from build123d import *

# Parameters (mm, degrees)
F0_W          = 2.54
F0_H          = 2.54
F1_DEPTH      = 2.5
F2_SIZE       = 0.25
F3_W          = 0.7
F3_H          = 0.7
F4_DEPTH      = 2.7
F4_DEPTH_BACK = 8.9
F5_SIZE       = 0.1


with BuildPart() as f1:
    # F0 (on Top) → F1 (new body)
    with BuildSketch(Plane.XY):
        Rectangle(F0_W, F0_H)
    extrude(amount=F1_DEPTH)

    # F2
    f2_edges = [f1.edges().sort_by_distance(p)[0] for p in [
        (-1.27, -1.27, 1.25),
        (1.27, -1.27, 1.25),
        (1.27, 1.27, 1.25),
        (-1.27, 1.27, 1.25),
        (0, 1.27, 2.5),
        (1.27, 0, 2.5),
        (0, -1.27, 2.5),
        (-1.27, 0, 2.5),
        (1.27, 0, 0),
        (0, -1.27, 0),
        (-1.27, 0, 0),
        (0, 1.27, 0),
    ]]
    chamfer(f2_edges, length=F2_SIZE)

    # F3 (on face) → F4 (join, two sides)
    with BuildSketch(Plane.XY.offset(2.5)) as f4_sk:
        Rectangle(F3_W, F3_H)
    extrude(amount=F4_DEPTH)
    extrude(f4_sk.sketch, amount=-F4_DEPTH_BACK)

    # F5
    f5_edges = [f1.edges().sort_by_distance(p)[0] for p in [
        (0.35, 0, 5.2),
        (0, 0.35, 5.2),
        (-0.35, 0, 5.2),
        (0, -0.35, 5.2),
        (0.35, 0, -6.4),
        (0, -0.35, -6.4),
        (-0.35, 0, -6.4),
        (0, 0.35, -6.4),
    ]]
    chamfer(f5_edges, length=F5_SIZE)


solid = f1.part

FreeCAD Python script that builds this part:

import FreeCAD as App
import Part
import Sketcher


def edges_at(feature, points):
    """Names of the edges that pass closest to the given points."""
    edges = feature.Shape.Edges
    near = lambda p: min(range(len(edges)), key=lambda i: edges[i].distToShape(Part.Vertex(*p))[0])
    return sorted({f"Edge{near(p) + 1}" for p in points})


def add_polygon(sketch, points):
    """Adds a closed chain of lines whose ends are joined by coincident constraints."""
    first, n = sketch.GeometryCount, len(points)
    for a, b in zip(points, points[1:] + points[:1]):
        sketch.addGeometry(Part.LineSegment(App.Vector(*a, 0), App.Vector(*b, 0)), False)
    for i in range(n):
        sketch.addConstraint(Sketcher.Constraint("Coincident", first + i, 2, first + (i + 1) % n, 1))

doc = App.newDocument("Part")
params = doc.addObject("Spreadsheet::Sheet", "Params")
for row, (alias, value) in enumerate([
    ("sketch1_width", "2.54 mm"),
    ("pad1_length", "2.5 mm"),
    ("chamfer_size", "0.25 mm"),
    ("sketch2_width", "0.7 mm"),
    ("pad2_length", "2.7 mm"),
    ("pad2_length2", "8.9 mm"),
    ("chamfer2_size", "0.1 mm"),
], start=1):
    params.set(f"A{row}", alias)
    params.set(f"B{row}", "=" + value)
    params.setAlias(f"B{row}", alias)

body = doc.addObject("PartDesign::Body", "Body")

sketch1 = body.newObject("Sketcher::SketchObject", "Sketch")
sketch1.AttachmentSupport = (doc.getObject("XY_Plane"), [""])
sketch1.MapMode = "FlatFace"
add_polygon(sketch1, [(-1.3, 1.3), (-1.3, -1.3), (1.3, -1.3), (1.3, 1.3)])
sketch1.addConstraint(Sketcher.Constraint("Vertical", 0))
sketch1.addConstraint(Sketcher.Constraint("Horizontal", 1))
sketch1.addConstraint(Sketcher.Constraint("Vertical", 2))
sketch1.addConstraint(Sketcher.Constraint("Horizontal", 3))
sketch1.addConstraint(Sketcher.Constraint("Symmetric", 0, 2, 2, 2, -1, 1))
sketch1.addConstraint(Sketcher.Constraint("Equal", 3, 0))
sketch1.addConstraint(Sketcher.Constraint("DistanceX", 1, 1, 1, 2, 2.54))
sketch1.setExpression("Constraints[10]", "Params.sketch1_width")
pad1 = body.newObject("PartDesign::Pad", "Pad")
pad1.Profile = sketch1
pad1.setExpression("Length", "Params.pad1_length")
doc.recompute()

chamfer = body.newObject("PartDesign::Chamfer", "Chamfer")
chamfer.Base = (pad1, ["Edge1"])
chamfer.UseAllEdges = True
chamfer.setExpression("Size", "Params.chamfer_size")

sketch2 = body.newObject("Sketcher::SketchObject", "Sketch001")
sketch2.AttachmentSupport = (doc.getObject("XY_Plane"), [""])
sketch2.MapMode = "FlatFace"
sketch2.AttachmentOffset = App.Placement(App.Vector(0, 0, 2.5), App.Rotation())
add_polygon(sketch2, [(-0.3, 0.3), (-0.3, -0.3), (0.3, -0.3), (0.3, 0.3)])
sketch2.addConstraint(Sketcher.Constraint("Vertical", 0))
sketch2.addConstraint(Sketcher.Constraint("Horizontal", 1))
sketch2.addConstraint(Sketcher.Constraint("Vertical", 2))
sketch2.addConstraint(Sketcher.Constraint("Horizontal", 3))
sketch2.addConstraint(Sketcher.Constraint("Symmetric", 0, 2, 2, 2, -1, 1))
sketch2.addConstraint(Sketcher.Constraint("Equal", 3, 0))
sketch2.addConstraint(Sketcher.Constraint("DistanceX", 1, 1, 1, 2, 0.7))
sketch2.setExpression("Constraints[10]", "Params.sketch2_width")
pad2 = body.newObject("PartDesign::Pad", "Pad001")
pad2.Profile = sketch2
pad2.Type = "TwoLengths"
pad2.setExpression("Length", "Params.pad2_length")
pad2.setExpression("Length2", "Params.pad2_length2")
doc.recompute()

chamfer2 = body.newObject("PartDesign::Chamfer", "Chamfer001")
chamfer2.Base = (pad2, edges_at(pad2, [
    (0.35, 0, 5.2),
    (0, 0.35, 5.2),
    (-0.35, 0, 5.2),
    (0, -0.35, 5.2),
    (0.35, 0, -6.4),
    (0, -0.35, -6.4),
    (-0.35, 0, -6.4),
    (0, 0.35, -6.4),
]))
chamfer2.setExpression("Size", "Params.chamfer2_size")

doc.recompute()
